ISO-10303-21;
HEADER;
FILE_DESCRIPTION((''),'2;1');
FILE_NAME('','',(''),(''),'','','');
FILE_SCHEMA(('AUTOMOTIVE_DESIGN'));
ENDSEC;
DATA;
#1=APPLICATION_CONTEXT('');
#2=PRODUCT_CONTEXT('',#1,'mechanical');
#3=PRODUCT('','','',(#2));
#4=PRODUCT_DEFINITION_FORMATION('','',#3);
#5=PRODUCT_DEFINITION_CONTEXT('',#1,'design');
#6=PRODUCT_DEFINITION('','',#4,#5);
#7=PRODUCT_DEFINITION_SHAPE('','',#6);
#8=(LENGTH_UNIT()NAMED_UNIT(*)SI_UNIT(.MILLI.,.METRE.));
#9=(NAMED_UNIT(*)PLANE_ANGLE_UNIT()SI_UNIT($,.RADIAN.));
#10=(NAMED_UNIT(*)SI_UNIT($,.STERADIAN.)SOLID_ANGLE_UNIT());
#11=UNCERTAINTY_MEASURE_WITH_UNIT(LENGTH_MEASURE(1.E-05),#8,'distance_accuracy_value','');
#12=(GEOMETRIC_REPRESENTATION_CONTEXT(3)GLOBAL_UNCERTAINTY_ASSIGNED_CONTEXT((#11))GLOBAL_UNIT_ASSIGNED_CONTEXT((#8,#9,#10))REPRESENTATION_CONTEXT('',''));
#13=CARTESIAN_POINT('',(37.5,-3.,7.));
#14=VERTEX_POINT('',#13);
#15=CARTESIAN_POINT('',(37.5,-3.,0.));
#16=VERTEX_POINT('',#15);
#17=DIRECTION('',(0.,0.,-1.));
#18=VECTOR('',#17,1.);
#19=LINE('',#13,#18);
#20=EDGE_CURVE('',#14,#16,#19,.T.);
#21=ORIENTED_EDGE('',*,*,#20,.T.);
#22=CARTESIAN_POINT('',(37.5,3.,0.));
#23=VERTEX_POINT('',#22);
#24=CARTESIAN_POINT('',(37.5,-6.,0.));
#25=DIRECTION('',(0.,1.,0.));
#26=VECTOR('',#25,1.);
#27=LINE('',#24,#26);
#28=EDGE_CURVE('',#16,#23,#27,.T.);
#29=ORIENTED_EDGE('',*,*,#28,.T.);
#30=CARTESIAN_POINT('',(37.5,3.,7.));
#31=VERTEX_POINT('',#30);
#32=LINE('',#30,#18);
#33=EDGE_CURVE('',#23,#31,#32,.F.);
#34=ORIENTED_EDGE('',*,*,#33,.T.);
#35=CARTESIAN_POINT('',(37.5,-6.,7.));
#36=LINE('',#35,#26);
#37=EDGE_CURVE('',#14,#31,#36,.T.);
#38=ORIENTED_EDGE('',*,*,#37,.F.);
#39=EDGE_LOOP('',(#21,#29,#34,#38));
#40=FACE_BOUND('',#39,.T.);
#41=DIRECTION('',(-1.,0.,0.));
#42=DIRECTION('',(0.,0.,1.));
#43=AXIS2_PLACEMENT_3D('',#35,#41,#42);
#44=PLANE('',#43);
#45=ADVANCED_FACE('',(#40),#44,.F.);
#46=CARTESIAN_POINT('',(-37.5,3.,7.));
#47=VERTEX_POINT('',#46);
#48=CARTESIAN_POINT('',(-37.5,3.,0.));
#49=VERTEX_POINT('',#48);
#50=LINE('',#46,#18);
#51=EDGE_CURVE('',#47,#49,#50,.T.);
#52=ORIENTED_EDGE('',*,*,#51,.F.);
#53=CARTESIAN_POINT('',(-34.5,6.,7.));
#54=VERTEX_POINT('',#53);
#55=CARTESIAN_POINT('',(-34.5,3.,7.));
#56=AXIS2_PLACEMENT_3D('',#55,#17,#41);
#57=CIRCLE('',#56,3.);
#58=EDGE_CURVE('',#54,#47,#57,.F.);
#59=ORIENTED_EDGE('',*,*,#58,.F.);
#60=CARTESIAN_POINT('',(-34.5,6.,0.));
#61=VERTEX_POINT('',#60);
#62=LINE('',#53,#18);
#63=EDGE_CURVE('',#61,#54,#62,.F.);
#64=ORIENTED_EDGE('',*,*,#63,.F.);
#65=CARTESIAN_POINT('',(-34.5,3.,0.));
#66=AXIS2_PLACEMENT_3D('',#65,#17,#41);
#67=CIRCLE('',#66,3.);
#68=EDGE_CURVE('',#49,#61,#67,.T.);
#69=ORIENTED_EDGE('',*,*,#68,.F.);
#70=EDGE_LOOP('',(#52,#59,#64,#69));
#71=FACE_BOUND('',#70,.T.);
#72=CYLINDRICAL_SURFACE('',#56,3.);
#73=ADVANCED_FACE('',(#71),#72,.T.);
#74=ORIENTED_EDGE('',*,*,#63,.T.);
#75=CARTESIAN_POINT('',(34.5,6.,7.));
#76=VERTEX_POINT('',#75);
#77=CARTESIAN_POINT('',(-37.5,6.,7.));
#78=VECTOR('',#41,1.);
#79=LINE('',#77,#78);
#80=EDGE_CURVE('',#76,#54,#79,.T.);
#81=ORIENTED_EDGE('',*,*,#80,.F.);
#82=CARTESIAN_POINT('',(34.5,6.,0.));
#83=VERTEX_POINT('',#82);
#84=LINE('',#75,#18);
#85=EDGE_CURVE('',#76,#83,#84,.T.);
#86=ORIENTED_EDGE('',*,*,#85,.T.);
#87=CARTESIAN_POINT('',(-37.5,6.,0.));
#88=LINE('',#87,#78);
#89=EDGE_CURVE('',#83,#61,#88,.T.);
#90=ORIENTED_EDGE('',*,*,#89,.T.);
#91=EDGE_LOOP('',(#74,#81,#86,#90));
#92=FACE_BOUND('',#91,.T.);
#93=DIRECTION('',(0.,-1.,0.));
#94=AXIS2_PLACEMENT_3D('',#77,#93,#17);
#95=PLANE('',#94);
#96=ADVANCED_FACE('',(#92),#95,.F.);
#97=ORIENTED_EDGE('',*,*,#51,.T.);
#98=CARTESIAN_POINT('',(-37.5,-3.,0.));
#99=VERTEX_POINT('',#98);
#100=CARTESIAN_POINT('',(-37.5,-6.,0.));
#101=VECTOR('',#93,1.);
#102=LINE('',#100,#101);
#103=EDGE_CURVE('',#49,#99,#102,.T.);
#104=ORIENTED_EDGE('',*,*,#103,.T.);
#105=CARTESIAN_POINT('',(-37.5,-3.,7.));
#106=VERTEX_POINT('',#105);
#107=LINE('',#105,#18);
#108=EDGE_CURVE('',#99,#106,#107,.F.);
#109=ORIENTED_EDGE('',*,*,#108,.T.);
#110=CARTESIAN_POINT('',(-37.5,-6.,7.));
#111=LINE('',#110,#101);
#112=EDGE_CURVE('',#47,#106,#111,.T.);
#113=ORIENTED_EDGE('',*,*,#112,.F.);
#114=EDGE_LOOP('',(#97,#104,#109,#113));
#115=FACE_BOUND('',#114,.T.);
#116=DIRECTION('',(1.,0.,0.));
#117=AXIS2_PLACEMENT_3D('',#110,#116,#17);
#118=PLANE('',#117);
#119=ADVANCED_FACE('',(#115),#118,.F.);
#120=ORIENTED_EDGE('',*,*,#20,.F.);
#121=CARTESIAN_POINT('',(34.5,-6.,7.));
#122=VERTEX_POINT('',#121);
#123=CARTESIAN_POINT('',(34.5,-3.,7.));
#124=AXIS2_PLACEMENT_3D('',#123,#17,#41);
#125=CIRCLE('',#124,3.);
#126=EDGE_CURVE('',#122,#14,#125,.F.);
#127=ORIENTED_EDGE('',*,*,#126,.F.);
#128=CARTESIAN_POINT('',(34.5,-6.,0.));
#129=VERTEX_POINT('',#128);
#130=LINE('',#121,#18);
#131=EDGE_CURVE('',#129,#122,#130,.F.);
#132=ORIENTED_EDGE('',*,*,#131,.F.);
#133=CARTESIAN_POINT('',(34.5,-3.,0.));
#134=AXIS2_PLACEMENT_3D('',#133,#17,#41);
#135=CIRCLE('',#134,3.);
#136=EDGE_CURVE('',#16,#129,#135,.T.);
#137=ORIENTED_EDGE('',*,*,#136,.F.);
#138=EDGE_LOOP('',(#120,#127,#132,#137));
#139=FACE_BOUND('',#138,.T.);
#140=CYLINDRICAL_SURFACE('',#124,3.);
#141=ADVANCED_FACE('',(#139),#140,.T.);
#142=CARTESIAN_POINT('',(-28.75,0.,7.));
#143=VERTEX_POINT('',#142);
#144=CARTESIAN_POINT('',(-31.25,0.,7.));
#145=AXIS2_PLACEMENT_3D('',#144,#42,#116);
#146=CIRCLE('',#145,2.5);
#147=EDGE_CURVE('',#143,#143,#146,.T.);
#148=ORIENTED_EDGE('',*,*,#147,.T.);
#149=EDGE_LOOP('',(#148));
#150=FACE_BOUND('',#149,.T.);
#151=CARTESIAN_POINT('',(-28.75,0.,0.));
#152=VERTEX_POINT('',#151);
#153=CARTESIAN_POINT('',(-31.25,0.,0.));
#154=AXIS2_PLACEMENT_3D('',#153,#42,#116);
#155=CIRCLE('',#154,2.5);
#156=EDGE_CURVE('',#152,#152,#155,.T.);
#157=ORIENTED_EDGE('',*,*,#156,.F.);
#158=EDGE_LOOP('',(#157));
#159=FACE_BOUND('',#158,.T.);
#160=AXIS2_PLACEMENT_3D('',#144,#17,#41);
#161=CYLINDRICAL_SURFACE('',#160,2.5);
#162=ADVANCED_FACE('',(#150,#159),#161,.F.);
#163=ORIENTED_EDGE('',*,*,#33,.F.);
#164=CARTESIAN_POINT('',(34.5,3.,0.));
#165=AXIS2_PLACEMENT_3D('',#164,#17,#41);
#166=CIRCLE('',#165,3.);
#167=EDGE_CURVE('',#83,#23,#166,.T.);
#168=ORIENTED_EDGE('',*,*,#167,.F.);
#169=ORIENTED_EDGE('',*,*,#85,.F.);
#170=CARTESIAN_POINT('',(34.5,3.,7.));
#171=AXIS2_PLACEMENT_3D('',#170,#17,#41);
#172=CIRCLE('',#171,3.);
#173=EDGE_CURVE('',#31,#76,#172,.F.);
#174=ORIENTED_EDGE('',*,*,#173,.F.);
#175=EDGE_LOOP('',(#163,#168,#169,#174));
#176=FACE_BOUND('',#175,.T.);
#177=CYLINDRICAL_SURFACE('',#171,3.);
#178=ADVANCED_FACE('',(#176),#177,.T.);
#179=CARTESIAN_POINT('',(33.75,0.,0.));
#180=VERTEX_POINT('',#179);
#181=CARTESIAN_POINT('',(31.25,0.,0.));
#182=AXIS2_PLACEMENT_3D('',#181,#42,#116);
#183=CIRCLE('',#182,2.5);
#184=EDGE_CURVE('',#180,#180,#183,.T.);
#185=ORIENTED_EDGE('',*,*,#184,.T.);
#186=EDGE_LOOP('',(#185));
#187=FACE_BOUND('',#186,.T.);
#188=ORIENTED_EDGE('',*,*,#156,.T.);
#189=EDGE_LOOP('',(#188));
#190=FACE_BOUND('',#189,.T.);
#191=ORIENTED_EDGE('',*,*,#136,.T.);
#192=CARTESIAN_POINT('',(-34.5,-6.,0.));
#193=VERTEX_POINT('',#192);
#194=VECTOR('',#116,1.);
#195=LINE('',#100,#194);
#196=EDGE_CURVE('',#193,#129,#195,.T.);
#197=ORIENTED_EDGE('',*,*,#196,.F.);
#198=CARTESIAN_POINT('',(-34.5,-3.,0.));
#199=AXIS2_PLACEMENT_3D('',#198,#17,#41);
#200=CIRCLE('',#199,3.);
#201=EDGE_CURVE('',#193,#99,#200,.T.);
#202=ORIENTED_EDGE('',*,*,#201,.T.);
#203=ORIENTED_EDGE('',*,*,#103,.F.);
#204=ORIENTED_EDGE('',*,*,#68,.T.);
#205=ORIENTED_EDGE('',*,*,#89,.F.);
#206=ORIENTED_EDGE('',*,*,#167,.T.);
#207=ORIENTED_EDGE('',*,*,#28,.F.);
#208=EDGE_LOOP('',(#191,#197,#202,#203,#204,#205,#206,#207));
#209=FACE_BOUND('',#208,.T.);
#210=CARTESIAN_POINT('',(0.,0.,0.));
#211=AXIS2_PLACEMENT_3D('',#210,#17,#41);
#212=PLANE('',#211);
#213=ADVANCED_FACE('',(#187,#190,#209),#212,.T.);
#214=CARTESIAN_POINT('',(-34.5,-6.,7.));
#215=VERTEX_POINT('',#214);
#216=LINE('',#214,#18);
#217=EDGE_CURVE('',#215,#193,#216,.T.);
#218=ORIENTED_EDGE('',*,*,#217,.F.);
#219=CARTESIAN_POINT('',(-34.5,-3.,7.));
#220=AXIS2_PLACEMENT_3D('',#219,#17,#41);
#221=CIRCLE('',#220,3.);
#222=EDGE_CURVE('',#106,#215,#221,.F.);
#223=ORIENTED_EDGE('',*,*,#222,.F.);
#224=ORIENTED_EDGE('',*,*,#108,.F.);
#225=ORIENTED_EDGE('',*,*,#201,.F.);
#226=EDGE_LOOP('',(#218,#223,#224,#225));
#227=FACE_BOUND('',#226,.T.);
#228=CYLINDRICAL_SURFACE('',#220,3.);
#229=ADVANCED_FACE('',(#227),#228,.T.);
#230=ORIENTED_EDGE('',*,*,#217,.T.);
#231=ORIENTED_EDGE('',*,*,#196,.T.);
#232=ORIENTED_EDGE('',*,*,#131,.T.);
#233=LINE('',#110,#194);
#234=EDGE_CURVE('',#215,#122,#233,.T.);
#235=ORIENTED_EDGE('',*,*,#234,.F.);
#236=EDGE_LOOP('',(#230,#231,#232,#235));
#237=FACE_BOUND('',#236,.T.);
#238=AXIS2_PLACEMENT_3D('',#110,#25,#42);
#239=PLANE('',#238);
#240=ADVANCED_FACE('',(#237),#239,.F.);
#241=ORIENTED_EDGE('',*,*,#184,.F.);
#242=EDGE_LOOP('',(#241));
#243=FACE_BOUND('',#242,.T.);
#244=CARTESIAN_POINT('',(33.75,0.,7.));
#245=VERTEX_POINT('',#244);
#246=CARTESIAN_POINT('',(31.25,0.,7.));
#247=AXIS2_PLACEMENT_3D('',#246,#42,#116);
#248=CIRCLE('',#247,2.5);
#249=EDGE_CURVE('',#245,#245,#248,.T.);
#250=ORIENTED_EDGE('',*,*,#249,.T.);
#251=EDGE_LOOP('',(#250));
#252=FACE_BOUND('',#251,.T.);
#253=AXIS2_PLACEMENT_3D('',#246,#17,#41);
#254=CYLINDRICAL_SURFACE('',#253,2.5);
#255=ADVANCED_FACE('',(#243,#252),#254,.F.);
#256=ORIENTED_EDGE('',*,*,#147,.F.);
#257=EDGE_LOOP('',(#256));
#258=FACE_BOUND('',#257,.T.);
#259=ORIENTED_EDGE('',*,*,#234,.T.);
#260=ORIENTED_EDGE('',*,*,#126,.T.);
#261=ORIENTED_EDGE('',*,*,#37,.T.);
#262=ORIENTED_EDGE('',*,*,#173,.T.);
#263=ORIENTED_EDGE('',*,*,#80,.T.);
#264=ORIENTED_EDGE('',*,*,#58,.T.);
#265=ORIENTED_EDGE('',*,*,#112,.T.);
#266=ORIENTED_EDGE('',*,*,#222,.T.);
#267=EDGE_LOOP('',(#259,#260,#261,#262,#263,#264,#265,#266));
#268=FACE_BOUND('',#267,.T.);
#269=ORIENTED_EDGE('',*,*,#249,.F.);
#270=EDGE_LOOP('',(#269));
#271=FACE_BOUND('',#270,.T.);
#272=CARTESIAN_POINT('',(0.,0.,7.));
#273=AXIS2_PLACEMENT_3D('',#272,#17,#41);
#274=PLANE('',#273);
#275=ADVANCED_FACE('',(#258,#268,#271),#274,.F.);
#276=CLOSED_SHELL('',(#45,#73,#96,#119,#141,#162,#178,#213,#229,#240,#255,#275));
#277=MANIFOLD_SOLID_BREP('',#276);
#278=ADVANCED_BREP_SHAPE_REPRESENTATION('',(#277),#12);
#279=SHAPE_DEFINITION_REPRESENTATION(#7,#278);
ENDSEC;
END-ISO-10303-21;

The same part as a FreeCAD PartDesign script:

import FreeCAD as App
import Part
import Sketcher


def edges_at(feature, points):
    """Names of the edges that pass closest to the given points."""
    edges = feature.Shape.Edges
    near = lambda p: min(range(len(edges)), key=lambda i: edges[i].distToShape(Part.Vertex(*p))[0])
    return sorted({f"Edge{near(p) + 1}" for p in points})


def add_polygon(sketch, points):
    """Adds a closed chain of lines whose ends are joined by coincident constraints."""
    first, n = sketch.GeometryCount, len(points)
    for a, b in zip(points, points[1:] + points[:1]):
        sketch.addGeometry(Part.LineSegment(App.Vector(*a, 0), App.Vector(*b, 0)), False)
    for i in range(n):
        sketch.addConstraint(Sketcher.Constraint("Coincident", first + i, 2, first + (i + 1) % n, 1))

doc = App.newDocument("Part")
body = doc.addObject("PartDesign::Body", "Body")

sketch1 = body.newObject("Sketcher::SketchObject", "Sketch")
sketch1.AttachmentSupport = (doc.getObject("XY_Plane"), [""])
sketch1.MapMode = "FlatFace"
add_polygon(sketch1, [(-37.5, 6), (-37.5, -6), (37.5, -6), (37.5, 6)])
sketch1.addGeometry(Part.Circle(App.Vector(-31.2, 0, 0), App.Vector(0, 0, 1), 2.5), False)
sketch1.addGeometry(Part.Circle(App.Vector(31.2, 0, 0), App.Vector(0, 0, 1), 2.5), False)
sketch1.addConstraint(Sketcher.Constraint("Vertical", 0))
sketch1.addConstraint(Sketcher.Constraint("Horizontal", 1))
sketch1.addConstraint(Sketcher.Constraint("Vertical", 2))
sketch1.addConstraint(Sketcher.Constraint("Horizontal", 3))
sketch1.addConstraint(Sketcher.Constraint("Equal", 4, 5))
sketch1.addConstraint(Sketcher.Constraint("Symmetric", 4, 3, 5, 3, -1, 1))
sketch1.addConstraint(Sketcher.Constraint("Symmetric", 0, 2, 2, 2, -1, 1))
sketch1.addConstraint(Sketcher.Constraint("PointOnObject", 4, 3, -1))
sketch1.addConstraint(Sketcher.Constraint("Diameter", 4, 5.0))
sketch1.addConstraint(Sketcher.Constraint("DistanceX", 1, 1, 1, 2, 75.0))
sketch1.addConstraint(Sketcher.Constraint("DistanceY", 0, 2, 0, 1, 12.0))
sketch1.addConstraint(Sketcher.Constraint("DistanceX", 4, 3, 5, 3, 62.5))
pad1 = body.newObject("PartDesign::Pad", "Pad")
pad1.Profile = sketch1
pad1.Length = 7
doc.recompute()

fillet = body.newObject("PartDesign::Fillet", "Fillet")
fillet.Base = (pad1, edges_at(pad1, [
    (37.5, -6, 3.5),
    (-37.5, -6, 3.5),
    (-37.5, 6, 3.5),
    (37.5, 6, 3.5),
]))
fillet.Radius = 3

doc.recompute()
